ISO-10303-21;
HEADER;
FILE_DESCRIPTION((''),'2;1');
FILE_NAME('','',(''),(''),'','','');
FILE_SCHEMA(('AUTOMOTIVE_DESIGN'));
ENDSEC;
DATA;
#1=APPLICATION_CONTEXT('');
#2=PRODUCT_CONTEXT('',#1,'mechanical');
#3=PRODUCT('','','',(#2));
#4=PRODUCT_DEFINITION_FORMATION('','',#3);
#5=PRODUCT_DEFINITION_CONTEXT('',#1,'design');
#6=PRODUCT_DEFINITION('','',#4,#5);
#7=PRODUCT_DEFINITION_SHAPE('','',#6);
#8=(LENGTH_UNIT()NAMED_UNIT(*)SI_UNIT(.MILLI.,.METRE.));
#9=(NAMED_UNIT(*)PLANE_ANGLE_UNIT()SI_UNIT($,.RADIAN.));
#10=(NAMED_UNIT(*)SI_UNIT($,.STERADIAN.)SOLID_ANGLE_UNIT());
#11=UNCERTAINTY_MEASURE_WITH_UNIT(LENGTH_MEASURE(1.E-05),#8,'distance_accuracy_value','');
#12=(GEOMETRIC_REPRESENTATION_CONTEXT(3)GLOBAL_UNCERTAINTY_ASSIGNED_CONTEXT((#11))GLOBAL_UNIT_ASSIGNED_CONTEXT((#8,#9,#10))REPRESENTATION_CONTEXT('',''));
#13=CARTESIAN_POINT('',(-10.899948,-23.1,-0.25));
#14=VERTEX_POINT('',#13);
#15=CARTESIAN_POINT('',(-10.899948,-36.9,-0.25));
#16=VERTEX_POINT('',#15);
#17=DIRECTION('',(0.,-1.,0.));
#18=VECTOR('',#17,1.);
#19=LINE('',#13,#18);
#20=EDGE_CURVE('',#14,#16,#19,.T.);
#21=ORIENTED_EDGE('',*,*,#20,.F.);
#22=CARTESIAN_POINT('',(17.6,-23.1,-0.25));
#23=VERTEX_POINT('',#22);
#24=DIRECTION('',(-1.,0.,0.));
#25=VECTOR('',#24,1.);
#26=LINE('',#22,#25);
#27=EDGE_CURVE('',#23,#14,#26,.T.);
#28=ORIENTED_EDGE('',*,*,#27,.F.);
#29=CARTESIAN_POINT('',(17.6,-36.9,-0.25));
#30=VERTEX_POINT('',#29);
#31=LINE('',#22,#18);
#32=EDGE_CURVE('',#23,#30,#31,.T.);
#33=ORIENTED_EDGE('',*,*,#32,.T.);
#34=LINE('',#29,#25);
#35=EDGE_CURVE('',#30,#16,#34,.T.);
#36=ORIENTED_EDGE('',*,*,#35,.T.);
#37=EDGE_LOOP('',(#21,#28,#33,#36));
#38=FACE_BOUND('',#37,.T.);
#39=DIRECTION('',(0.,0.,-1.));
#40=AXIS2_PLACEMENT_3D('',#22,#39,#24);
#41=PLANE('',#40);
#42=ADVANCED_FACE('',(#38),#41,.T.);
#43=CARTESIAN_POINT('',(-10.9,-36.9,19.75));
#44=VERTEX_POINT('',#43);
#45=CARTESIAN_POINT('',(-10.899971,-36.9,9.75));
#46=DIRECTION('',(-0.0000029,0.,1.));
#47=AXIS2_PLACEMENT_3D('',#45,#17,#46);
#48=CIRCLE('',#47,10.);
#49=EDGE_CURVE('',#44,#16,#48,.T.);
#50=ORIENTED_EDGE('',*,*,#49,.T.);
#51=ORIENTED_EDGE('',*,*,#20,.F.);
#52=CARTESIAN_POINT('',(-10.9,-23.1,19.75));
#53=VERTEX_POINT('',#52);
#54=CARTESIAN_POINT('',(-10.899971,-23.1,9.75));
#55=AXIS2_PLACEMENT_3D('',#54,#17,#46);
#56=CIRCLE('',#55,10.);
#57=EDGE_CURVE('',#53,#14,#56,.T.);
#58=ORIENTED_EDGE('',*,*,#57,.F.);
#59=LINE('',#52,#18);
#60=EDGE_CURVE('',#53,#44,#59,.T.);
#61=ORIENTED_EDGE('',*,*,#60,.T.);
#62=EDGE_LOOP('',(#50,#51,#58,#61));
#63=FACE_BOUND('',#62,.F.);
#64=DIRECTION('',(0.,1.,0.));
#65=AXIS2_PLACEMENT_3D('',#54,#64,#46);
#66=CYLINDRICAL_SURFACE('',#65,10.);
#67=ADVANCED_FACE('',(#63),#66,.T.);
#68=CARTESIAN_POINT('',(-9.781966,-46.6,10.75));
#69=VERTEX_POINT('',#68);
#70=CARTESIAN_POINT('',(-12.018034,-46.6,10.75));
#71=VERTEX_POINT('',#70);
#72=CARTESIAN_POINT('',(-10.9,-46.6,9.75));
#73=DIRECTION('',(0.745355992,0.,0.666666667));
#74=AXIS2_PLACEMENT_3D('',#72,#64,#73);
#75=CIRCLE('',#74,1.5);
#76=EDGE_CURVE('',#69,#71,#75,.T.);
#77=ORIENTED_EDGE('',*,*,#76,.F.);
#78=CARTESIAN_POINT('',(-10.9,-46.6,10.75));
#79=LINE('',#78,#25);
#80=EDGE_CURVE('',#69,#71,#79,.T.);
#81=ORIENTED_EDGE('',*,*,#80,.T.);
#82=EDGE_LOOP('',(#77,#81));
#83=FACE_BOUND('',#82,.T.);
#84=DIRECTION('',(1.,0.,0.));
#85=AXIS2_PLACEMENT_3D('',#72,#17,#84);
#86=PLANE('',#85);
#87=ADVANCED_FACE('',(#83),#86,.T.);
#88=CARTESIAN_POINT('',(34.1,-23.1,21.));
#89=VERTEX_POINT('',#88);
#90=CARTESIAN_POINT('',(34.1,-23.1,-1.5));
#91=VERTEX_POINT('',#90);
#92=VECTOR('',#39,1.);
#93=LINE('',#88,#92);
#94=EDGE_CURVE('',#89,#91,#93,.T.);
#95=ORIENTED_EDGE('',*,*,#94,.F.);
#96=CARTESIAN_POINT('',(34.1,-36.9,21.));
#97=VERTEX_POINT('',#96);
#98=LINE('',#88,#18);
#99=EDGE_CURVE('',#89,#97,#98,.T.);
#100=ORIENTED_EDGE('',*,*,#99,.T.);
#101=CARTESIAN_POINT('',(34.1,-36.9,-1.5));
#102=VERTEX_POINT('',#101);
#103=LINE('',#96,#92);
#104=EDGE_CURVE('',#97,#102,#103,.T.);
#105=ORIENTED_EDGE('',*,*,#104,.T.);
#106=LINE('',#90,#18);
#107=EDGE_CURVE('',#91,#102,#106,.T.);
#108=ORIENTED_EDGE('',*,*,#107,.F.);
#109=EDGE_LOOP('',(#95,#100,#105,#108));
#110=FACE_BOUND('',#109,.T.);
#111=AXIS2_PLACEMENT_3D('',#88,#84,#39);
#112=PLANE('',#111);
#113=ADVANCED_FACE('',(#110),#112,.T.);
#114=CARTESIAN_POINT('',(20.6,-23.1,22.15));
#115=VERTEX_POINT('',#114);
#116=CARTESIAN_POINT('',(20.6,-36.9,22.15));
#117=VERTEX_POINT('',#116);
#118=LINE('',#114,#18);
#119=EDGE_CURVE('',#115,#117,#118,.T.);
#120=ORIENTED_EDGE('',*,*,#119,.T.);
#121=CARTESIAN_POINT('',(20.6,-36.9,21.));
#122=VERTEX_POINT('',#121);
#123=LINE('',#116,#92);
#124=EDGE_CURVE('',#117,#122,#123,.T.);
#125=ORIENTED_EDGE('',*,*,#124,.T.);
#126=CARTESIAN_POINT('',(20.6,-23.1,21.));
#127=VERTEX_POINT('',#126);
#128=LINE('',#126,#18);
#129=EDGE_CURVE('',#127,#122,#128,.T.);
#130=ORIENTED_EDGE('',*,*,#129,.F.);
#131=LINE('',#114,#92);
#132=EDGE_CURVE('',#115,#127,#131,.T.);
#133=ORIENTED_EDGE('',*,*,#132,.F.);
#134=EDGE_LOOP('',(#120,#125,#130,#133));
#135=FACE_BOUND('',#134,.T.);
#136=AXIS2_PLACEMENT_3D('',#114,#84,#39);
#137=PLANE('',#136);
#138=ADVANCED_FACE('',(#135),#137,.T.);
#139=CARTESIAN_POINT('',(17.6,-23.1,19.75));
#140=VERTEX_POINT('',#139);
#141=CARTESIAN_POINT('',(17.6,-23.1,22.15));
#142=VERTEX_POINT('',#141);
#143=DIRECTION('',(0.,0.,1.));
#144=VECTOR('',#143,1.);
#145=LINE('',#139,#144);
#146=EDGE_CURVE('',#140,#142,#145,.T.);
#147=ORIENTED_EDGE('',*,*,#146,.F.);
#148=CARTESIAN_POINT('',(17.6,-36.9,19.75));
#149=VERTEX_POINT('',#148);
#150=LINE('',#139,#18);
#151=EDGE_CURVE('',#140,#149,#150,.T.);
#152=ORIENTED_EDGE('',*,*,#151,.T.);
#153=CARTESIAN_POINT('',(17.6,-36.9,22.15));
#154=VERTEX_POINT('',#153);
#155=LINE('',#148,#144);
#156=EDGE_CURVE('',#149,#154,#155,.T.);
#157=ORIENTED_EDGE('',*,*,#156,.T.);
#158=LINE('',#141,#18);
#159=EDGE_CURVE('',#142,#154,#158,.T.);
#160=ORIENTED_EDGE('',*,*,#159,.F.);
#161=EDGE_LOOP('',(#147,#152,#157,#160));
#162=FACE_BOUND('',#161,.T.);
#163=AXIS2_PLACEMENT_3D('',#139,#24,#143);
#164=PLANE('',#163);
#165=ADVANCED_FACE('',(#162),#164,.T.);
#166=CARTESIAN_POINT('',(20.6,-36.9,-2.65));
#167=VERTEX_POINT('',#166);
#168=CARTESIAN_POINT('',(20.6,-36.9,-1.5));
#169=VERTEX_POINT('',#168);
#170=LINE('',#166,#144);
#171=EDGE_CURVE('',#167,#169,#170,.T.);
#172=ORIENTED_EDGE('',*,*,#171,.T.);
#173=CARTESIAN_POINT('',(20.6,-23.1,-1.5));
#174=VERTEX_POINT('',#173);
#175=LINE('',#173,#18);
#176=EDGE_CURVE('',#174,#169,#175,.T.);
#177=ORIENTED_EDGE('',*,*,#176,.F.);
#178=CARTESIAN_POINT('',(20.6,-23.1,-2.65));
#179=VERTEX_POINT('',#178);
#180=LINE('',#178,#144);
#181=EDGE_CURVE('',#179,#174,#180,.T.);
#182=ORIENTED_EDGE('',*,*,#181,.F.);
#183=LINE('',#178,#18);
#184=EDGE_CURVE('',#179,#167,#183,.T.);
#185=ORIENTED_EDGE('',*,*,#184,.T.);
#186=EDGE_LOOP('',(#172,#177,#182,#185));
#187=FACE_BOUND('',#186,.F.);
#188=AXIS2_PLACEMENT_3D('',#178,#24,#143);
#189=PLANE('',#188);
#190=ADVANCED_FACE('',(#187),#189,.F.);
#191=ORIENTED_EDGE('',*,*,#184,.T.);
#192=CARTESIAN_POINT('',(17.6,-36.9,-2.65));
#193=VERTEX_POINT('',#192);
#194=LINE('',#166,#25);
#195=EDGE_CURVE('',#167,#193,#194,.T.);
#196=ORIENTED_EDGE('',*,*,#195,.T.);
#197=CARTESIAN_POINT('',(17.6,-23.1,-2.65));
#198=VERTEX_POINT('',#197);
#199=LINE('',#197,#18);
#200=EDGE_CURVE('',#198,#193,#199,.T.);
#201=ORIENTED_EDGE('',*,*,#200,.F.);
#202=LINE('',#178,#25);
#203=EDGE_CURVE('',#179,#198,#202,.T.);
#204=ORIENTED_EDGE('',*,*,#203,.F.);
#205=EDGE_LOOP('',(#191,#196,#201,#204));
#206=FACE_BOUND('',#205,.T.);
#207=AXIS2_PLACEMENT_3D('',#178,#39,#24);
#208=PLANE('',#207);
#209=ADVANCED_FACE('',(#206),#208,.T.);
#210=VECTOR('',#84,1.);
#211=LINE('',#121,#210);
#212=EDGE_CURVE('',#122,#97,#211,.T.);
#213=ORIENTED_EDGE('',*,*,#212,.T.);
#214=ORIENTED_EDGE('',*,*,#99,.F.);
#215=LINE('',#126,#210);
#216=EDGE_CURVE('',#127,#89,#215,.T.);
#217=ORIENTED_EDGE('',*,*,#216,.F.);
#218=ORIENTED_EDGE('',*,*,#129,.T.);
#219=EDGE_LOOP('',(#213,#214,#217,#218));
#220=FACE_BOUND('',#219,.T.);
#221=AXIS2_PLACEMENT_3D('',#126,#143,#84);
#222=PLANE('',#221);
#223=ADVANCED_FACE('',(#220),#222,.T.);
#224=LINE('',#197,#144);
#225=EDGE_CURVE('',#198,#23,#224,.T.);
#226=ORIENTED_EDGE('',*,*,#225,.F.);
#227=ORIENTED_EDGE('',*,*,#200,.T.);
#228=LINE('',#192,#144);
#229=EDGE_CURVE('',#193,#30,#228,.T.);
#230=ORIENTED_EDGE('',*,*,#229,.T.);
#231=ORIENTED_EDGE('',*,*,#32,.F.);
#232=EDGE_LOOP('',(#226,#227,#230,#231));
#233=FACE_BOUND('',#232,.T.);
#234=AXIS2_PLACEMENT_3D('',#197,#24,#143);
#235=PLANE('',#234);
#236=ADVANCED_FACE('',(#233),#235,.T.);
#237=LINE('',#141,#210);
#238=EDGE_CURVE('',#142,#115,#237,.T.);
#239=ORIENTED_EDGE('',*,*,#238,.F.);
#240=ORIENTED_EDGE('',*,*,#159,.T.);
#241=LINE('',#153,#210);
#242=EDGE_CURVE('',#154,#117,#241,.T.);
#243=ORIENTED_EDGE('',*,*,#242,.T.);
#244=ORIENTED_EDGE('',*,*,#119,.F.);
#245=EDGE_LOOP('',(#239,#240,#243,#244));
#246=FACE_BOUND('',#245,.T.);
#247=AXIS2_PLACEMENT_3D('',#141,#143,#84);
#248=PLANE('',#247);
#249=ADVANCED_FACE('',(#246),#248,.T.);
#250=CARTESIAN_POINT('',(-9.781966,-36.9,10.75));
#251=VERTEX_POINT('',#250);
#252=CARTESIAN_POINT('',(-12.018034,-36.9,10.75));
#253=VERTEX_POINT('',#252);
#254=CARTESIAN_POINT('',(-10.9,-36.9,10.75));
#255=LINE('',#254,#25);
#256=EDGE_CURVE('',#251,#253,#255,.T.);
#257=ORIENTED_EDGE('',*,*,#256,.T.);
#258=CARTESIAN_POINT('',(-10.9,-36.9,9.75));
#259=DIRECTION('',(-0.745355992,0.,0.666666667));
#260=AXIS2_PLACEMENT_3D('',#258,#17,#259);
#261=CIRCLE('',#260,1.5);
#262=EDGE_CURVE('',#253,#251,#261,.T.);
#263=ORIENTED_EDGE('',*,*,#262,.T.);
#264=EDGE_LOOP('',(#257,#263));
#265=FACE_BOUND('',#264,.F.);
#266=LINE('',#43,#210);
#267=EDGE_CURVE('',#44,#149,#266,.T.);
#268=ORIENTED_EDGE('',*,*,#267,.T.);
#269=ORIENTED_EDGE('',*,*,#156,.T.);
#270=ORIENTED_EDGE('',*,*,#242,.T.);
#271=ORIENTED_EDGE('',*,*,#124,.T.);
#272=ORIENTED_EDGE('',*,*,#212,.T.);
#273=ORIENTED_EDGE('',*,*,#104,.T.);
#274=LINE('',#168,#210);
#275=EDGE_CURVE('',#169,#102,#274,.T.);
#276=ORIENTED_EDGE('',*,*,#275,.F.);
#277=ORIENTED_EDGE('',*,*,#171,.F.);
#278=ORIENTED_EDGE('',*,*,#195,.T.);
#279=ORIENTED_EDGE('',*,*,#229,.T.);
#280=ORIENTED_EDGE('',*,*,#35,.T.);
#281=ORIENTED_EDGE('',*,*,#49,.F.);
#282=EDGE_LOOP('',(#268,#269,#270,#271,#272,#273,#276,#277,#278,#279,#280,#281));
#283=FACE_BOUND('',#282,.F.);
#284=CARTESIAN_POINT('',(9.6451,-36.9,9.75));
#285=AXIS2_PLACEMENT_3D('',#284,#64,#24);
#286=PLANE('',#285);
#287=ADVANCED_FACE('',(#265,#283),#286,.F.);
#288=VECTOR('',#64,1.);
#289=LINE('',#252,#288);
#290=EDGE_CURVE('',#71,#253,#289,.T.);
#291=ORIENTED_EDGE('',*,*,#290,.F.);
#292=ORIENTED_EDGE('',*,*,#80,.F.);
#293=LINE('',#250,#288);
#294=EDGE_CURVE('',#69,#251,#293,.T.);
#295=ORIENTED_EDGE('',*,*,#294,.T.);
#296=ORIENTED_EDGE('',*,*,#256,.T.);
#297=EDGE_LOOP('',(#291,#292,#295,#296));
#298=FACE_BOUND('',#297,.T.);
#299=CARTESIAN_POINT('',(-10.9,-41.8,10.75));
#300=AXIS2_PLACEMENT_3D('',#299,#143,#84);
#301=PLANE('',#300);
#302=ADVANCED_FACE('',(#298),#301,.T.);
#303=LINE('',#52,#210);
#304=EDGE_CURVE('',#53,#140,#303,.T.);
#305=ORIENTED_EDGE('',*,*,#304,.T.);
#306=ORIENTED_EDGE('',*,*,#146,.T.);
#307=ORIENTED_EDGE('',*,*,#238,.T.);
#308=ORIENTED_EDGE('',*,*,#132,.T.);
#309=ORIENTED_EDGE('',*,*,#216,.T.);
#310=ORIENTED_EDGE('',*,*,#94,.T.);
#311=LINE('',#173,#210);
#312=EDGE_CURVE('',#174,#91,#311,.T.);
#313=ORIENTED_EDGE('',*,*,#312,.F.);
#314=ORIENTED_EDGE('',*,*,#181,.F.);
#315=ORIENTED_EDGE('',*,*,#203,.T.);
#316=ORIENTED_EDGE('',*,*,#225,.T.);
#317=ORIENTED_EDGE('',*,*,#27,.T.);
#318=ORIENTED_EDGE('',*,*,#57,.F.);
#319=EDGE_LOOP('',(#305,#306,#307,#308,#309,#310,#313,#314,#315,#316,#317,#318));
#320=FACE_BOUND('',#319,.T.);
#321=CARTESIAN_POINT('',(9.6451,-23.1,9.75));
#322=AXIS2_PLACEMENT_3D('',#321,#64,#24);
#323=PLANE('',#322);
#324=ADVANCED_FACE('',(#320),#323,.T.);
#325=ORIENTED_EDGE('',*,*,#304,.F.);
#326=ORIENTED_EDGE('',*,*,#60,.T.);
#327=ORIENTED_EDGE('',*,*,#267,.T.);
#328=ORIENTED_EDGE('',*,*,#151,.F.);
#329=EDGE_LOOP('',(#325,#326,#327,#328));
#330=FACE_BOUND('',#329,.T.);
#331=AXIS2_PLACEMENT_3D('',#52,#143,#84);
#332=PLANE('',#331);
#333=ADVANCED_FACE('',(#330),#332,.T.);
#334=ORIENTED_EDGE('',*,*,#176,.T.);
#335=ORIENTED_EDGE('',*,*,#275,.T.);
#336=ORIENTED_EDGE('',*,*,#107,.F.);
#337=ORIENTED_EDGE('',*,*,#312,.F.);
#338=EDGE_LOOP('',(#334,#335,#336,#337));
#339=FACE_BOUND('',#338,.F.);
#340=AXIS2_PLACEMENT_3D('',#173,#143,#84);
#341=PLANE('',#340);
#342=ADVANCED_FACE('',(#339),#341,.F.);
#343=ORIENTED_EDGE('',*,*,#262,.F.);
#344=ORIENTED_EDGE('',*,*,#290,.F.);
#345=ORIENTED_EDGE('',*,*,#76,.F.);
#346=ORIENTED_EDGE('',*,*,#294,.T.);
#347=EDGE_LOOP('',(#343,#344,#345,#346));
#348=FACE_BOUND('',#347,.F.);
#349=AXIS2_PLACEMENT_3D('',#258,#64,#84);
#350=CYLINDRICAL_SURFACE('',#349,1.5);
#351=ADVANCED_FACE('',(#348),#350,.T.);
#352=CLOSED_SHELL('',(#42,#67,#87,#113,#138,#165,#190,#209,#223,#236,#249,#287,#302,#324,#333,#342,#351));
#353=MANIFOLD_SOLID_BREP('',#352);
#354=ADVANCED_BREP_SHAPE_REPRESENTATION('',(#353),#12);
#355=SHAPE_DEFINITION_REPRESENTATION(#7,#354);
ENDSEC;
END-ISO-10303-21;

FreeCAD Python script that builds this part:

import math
import FreeCAD as App
import Part
import Sketcher

V = App.Vector
Q = App.Units.Quantity

doc = App.newDocument("Part")
body = doc.addObject("PartDesign::Body", "Body")

sketch1 = body.newObject("Sketcher::SketchObject", "Sketch")
sketch1.AttachmentSupport = (doc.getObject("XZ_Plane"), [""])
sketch1.MapMode = "FlatFace"
sketch1.addGeometry(Part.LineSegment(V(-16.5, 21.25, 0), V(-45, 21.25, 0)), False)
sketch1.addGeometry(Part.ArcOfCircle(Part.Circle(V(-44.999971, 11.25, 0), V(0, 0, 1), 10), math.radians(90.000166), math.radians(270.000132)), False)
sketch1.addGeometry(Part.LineSegment(V(-44.999948, 1.25, 0), V(-16.5, 1.25, 0)), False)
sketch1.addGeometry(Part.LineSegment(V(-16.5, 1.25, 0), V(-16.5, -1.15, 0)), False)
sketch1.addGeometry(Part.LineSegment(V(-16.5, -1.15, 0), V(-13.5, -1.15, 0)), False)
sketch1.addGeometry(Part.LineSegment(V(-13.5, -1.15, 0), V(-13.5, 0, 0)), False)
sketch1.addGeometry(Part.LineSegment(V(-13.5, 0, 0), V(0, 0, 0)), False)
sketch1.addGeometry(Part.LineSegment(V(0, 0, 0), V(0, 22.5, 0)), False)
sketch1.addGeometry(Part.LineSegment(V(0, 22.5, 0), V(-13.5, 22.5, 0)), False)
sketch1.addGeometry(Part.LineSegment(V(-13.5, 22.5, 0), V(-13.5, 23.65, 0)), False)
sketch1.addGeometry(Part.LineSegment(V(-13.5, 23.65, 0), V(-16.5, 23.65, 0)), False)
sketch1.addGeometry(Part.LineSegment(V(-16.5, 23.65, 0), V(-16.5, 21.25, 0)), False)
sketch1.addConstraint(Sketcher.Constraint("Coincident", 0, 2, 1, 1))
sketch1.addConstraint(Sketcher.Constraint("Coincident", 1, 2, 2, 1))
sketch1.addConstraint(Sketcher.Constraint("Coincident", 2, 2, 3, 1))
sketch1.addConstraint(Sketcher.Constraint("Coincident", 3, 2, 4, 1))
sketch1.addConstraint(Sketcher.Constraint("Coincident", 4, 2, 5, 1))
sketch1.addConstraint(Sketcher.Constraint("Coincident", 5, 2, 6, 1))
sketch1.addConstraint(Sketcher.Constraint("Coincident", 6, 2, 7, 1))
sketch1.addConstraint(Sketcher.Constraint("Coincident", 7, 2, 8, 1))
sketch1.addConstraint(Sketcher.Constraint("Coincident", 8, 2, 9, 1))
sketch1.addConstraint(Sketcher.Constraint("Coincident", 9, 2, 10, 1))
sketch1.addConstraint(Sketcher.Constraint("Coincident", 10, 2, 11, 1))
sketch1.addConstraint(Sketcher.Constraint("Coincident", 11, 2, 0, 1))
sketch1.addConstraint(Sketcher.Constraint("Horizontal", 0))
sketch1.addConstraint(Sketcher.Constraint("Horizontal", 2))
sketch1.addConstraint(Sketcher.Constraint("Vertical", 3))
sketch1.addConstraint(Sketcher.Constraint("Horizontal", 4))
sketch1.addConstraint(Sketcher.Constraint("Vertical", 5))
sketch1.addConstraint(Sketcher.Constraint("Horizontal", 6))
sketch1.addConstraint(Sketcher.Constraint("Vertical", 7))
sketch1.addConstraint(Sketcher.Constraint("Horizontal", 8))
sketch1.addConstraint(Sketcher.Constraint("Vertical", 9))
sketch1.addConstraint(Sketcher.Constraint("Horizontal", 10))
sketch1.addConstraint(Sketcher.Constraint("Vertical", 11))
sketch1.addConstraint(Sketcher.Constraint("Coincident", 6, 2, -1, 1))
sketch1.addConstraint(Sketcher.Constraint("Vertical", 5, 2, 8, 2))
sketch1.addConstraint(Sketcher.Constraint("Vertical", 3, 2, 10, 2))
sketch1.addConstraint(Sketcher.Constraint("Equal", 5, 9))
sketch1.addConstraint(Sketcher.Constraint("Equal", 3, 11))
sketch1.addConstraint(Sketcher.Constraint("Radius", 1, Q("10 mm")))
sketch1.addConstraint(Sketcher.Constraint("DistanceX", 4, 1, 4, 2, Q("3 mm")))
sketch1.addConstraint(Sketcher.Constraint("DistanceX", 0, 2, 0, 1, Q("28.5 mm")))
sketch1.addConstraint(Sketcher.Constraint("DistanceX", 6, 1, 6, 2, Q("13.5 mm")))
sketch1.addConstraint(Sketcher.Constraint("DistanceY", 3, 2, 3, 1, Q("2.4 mm")))
sketch1.addConstraint(Sketcher.Constraint("DistanceY", 7, 1, 7, 2, Q("22.5 mm")))
sketch1.addConstraint(Sketcher.Constraint("DistanceX", 2, 1, 2, 2, Q("28.499948 mm")))
sketch1.addConstraint(Sketcher.Constraint("DistanceX", 1, 3, -1, 1, Q("44.999971 mm")))
pad1 = body.newObject("PartDesign::Pad", "Pad")
pad1.Profile = sketch1
pad1.Length = 13.8
body2 = doc.addObject("PartDesign::Body", "Body001")

sketch2 = body2.newObject("Sketcher::SketchObject", "Sketch001")
sketch2.AttachmentSupport = (doc.getObject("XY_Plane001"), [""])
sketch2.MapMode = "FlatFace"
sketch2.AttachmentOffset = App.Placement(V(0, 0, 12.25), App.Rotation())
sketch2.addGeometry(Part.LineSegment(V(-46.5, -13.7, 0), V(-46.5, -23.7, 0)), False)
sketch2.addGeometry(Part.LineSegment(V(-46.5, -23.7, 0), V(-43.5, -23.7, 0)), False)
sketch2.addGeometry(Part.LineSegment(V(-43.5, -23.7, 0), V(-43.5, -13.7, 0)), False)
sketch2.addGeometry(Part.LineSegment(V(-43.5, -13.7, 0), V(-46.5, -13.7, 0)), False)
sketch2.addConstraint(Sketcher.Constraint("Coincident", 0, 2, 1, 1))
sketch2.addConstraint(Sketcher.Constraint("Coincident", 1, 2, 2, 1))
sketch2.addConstraint(Sketcher.Constraint("Coincident", 2, 2, 3, 1))
sketch2.addConstraint(Sketcher.Constraint("Coincident", 3, 2, 0, 1))
sketch2.addConstraint(Sketcher.Constraint("Vertical", 0))
sketch2.addConstraint(Sketcher.Constraint("Horizontal", 1))
sketch2.addConstraint(Sketcher.Constraint("Vertical", 2))
sketch2.addConstraint(Sketcher.Constraint("Horizontal", 3))
sketch2.addConstraint(Sketcher.Constraint("DistanceX", 1, 1, 1, 2, Q("3 mm")))
sketch2.addConstraint(Sketcher.Constraint("DistanceY", 0, 2, 0, 1, Q("10 mm")))
sketch2.addConstraint(Sketcher.Constraint("DistanceX", 0, 2, -1, 1, Q("46.5 mm")))
sketch2.addConstraint(Sketcher.Constraint("DistanceY", 0, 2, -1, 1, Q("23.7 mm")))
pad2 = body2.newObject("PartDesign::Pad", "Pad001")
pad2.Profile = sketch2
pad2.Length = 3
body3 = doc.addObject("PartDesign::Body", "Body002")

sketch3 = body3.newObject("Sketcher::SketchObject", "Sketch002")
sketch3.AttachmentSupport = (doc.getObject("XY_Plane002"), [""])
sketch3.MapMode = "FlatFace"
sketch3.addGeometry(Part.Circle(V(0, 0, 0), V(0, 0, 1), 1.5), False)
sketch3.addConstraint(Sketcher.Constraint("Coincident", 0, 3, -1, 1))
sketch3.addConstraint(Sketcher.Constraint("Diameter", 0, Q("3 mm")))
pad3 = body3.newObject("PartDesign::Pad", "Pad002")
pad3.Profile = sketch3
pad3.Length = 9.7
body4 = doc.addObject("PartDesign::Body", "Body003")
doc.recompute()

body3.Placement = App.Placement(V(0, 0, 0), App.Rotation(V(1, 0, 0), 90))
boolean = body4.newObject("PartDesign::Boolean", "Boolean")
boolean.Type = "Fuse"
boolean.addObjects([body3])
body5 = doc.addObject("PartDesign::Body", "Body004")
doc.recompute()

body4.Placement = App.Placement(V(-45, -13.8, 11.25), App.Rotation(V(0, 0, 1), 0))
boolean2 = body5.newObject("PartDesign::Boolean", "Boolean001")
boolean2.Type = "Fuse"
boolean2.addObjects([body4])
doc.recompute()

boolean3 = body5.newObject("PartDesign::Boolean", "Boolean002")
boolean3.Type = "Cut"
boolean3.addObjects([body2])
doc.recompute()

boolean4 = body5.newObject("PartDesign::Boolean", "Boolean003")
boolean4.Type = "Fuse"
boolean4.addObjects([body])
body6 = doc.addObject("PartDesign::Body", "Body005")
doc.recompute()

body5.Placement = App.Placement(V(34.1, -23.1, -1.5), App.Rotation(V(0, 0, 1), 0))
boolean5 = body6.newObject("PartDesign::Boolean", "Boolean004")
boolean5.Type = "Fuse"
boolean5.addObjects([body5])

doc.recompute()
